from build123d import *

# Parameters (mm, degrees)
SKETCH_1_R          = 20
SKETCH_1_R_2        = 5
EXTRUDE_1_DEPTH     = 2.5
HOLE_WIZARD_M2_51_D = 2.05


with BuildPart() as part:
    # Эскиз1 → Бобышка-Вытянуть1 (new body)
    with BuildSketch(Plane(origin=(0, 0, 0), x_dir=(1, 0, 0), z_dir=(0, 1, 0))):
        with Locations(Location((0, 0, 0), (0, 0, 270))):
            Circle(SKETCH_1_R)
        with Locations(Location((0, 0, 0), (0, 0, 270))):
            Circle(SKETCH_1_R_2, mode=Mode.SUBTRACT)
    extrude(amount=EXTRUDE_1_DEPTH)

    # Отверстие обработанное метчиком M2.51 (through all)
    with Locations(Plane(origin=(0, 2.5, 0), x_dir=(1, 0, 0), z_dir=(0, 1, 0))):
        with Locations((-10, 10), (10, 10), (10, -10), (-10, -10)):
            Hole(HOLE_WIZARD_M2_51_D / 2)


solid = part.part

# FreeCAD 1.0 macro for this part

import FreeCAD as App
import Part
import Sketcher

doc = App.newDocument("Part")
params = doc.addObject("Spreadsheet::Sheet", "Params")
for row, (alias, value) in enumerate([
    ("sketch1_diameter", "40 mm"),
    ("sketch1_diameter2", "10 mm"),
    ("pad1_length", "2.5 mm"),
    ("sketch2_diameter", "2.05 mm"),
    ("hole_diameter", "2.05 mm"),
], start=1):
    params.set(f"A{row}", alias)
    params.set(f"B{row}", "=" + value)
    params.setAlias(f"B{row}", alias)

body = doc.addObject("PartDesign::Body", "Body")

sketch1 = body.newObject("Sketcher::SketchObject", "Sketch")
sketch1.AttachmentSupport = (doc.getObject("XZ_Plane"), [""])
sketch1.MapMode = "FlatFace"
sketch1.addGeometry([
    Part.Circle(App.Vector(0, 0, 0), App.Vector(0, 0, 1), 20),
    Part.Circle(App.Vector(0, 0, 0), App.Vector(0, 0, 1), 5),
], False)
sketch1.addConstraint([
    Sketcher.Constraint("Coincident", 0, 3, -1, 1),
    Sketcher.Constraint("Coincident", 1, 3, -1, 1),
    Sketcher.Constraint("Diameter", 0, 40.0),
    Sketcher.Constraint("Diameter", 1, 10.0),
])
sketch1.setExpression("Constraints[2]", "Params.sketch1_diameter")
sketch1.setExpression("Constraints[3]", "Params.sketch1_diameter2")
pad1 = body.newObject("PartDesign::Pad", "Pad")
pad1.Profile = sketch1
pad1.setExpression("Length", "Params.pad1_length")
pad1.Reversed = True

sketch2 = body.newObject("Sketcher::SketchObject", "Sketch001")
sketch2.AttachmentSupport = (doc.getObject("XZ_Plane"), [""])
sketch2.MapMode = "FlatFace"
sketch2.AttachmentOffset = App.Placement(App.Vector(0, 0, -2.5), App.Rotation())
sketch2.addGeometry([
    Part.Circle(App.Vector(-10, -10, 0), App.Vector(0, 0, 1), 1),
    Part.Circle(App.Vector(10, -10, 0), App.Vector(0, 0, 1), 1),
    Part.Circle(App.Vector(10, 10, 0), App.Vector(0, 0, 1), 1),
    Part.Circle(App.Vector(-10, 10, 0), App.Vector(0, 0, 1), 1),
], False)
sketch2.addConstraint([
    Sketcher.Constraint("Equal", 0, 1),
    Sketcher.Constraint("Equal", 1, 2),
    Sketcher.Constraint("Equal", 2, 3),
    Sketcher.Constraint("Symmetric", 0, 3, 2, 3, -1, 1),
    Sketcher.Constraint("Symmetric", 1, 3, 3, 3, -1, 1),
    Sketcher.Constraint("Symmetric", 0, 3, 1, 3, -2),
    Sketcher.Constraint("Diameter", 0, 2.05),
    Sketcher.Constraint("DistanceX", 0, 3, -1, 1, 10.0),
    Sketcher.Constraint("DistanceY", 0, 3, -1, 1, 10.0),
])
sketch2.setExpression("Constraints[6]", "Params.sketch2_diameter")
doc.recompute()
hole = body.newObject("PartDesign::Hole", "Hole")
hole.Profile = sketch2
hole.ThreadType = "None"
hole.setExpression("Diameter", "Params.hole_diameter")
hole.DepthType = "ThroughAll"
hole.Reversed = True

doc.recompute()
